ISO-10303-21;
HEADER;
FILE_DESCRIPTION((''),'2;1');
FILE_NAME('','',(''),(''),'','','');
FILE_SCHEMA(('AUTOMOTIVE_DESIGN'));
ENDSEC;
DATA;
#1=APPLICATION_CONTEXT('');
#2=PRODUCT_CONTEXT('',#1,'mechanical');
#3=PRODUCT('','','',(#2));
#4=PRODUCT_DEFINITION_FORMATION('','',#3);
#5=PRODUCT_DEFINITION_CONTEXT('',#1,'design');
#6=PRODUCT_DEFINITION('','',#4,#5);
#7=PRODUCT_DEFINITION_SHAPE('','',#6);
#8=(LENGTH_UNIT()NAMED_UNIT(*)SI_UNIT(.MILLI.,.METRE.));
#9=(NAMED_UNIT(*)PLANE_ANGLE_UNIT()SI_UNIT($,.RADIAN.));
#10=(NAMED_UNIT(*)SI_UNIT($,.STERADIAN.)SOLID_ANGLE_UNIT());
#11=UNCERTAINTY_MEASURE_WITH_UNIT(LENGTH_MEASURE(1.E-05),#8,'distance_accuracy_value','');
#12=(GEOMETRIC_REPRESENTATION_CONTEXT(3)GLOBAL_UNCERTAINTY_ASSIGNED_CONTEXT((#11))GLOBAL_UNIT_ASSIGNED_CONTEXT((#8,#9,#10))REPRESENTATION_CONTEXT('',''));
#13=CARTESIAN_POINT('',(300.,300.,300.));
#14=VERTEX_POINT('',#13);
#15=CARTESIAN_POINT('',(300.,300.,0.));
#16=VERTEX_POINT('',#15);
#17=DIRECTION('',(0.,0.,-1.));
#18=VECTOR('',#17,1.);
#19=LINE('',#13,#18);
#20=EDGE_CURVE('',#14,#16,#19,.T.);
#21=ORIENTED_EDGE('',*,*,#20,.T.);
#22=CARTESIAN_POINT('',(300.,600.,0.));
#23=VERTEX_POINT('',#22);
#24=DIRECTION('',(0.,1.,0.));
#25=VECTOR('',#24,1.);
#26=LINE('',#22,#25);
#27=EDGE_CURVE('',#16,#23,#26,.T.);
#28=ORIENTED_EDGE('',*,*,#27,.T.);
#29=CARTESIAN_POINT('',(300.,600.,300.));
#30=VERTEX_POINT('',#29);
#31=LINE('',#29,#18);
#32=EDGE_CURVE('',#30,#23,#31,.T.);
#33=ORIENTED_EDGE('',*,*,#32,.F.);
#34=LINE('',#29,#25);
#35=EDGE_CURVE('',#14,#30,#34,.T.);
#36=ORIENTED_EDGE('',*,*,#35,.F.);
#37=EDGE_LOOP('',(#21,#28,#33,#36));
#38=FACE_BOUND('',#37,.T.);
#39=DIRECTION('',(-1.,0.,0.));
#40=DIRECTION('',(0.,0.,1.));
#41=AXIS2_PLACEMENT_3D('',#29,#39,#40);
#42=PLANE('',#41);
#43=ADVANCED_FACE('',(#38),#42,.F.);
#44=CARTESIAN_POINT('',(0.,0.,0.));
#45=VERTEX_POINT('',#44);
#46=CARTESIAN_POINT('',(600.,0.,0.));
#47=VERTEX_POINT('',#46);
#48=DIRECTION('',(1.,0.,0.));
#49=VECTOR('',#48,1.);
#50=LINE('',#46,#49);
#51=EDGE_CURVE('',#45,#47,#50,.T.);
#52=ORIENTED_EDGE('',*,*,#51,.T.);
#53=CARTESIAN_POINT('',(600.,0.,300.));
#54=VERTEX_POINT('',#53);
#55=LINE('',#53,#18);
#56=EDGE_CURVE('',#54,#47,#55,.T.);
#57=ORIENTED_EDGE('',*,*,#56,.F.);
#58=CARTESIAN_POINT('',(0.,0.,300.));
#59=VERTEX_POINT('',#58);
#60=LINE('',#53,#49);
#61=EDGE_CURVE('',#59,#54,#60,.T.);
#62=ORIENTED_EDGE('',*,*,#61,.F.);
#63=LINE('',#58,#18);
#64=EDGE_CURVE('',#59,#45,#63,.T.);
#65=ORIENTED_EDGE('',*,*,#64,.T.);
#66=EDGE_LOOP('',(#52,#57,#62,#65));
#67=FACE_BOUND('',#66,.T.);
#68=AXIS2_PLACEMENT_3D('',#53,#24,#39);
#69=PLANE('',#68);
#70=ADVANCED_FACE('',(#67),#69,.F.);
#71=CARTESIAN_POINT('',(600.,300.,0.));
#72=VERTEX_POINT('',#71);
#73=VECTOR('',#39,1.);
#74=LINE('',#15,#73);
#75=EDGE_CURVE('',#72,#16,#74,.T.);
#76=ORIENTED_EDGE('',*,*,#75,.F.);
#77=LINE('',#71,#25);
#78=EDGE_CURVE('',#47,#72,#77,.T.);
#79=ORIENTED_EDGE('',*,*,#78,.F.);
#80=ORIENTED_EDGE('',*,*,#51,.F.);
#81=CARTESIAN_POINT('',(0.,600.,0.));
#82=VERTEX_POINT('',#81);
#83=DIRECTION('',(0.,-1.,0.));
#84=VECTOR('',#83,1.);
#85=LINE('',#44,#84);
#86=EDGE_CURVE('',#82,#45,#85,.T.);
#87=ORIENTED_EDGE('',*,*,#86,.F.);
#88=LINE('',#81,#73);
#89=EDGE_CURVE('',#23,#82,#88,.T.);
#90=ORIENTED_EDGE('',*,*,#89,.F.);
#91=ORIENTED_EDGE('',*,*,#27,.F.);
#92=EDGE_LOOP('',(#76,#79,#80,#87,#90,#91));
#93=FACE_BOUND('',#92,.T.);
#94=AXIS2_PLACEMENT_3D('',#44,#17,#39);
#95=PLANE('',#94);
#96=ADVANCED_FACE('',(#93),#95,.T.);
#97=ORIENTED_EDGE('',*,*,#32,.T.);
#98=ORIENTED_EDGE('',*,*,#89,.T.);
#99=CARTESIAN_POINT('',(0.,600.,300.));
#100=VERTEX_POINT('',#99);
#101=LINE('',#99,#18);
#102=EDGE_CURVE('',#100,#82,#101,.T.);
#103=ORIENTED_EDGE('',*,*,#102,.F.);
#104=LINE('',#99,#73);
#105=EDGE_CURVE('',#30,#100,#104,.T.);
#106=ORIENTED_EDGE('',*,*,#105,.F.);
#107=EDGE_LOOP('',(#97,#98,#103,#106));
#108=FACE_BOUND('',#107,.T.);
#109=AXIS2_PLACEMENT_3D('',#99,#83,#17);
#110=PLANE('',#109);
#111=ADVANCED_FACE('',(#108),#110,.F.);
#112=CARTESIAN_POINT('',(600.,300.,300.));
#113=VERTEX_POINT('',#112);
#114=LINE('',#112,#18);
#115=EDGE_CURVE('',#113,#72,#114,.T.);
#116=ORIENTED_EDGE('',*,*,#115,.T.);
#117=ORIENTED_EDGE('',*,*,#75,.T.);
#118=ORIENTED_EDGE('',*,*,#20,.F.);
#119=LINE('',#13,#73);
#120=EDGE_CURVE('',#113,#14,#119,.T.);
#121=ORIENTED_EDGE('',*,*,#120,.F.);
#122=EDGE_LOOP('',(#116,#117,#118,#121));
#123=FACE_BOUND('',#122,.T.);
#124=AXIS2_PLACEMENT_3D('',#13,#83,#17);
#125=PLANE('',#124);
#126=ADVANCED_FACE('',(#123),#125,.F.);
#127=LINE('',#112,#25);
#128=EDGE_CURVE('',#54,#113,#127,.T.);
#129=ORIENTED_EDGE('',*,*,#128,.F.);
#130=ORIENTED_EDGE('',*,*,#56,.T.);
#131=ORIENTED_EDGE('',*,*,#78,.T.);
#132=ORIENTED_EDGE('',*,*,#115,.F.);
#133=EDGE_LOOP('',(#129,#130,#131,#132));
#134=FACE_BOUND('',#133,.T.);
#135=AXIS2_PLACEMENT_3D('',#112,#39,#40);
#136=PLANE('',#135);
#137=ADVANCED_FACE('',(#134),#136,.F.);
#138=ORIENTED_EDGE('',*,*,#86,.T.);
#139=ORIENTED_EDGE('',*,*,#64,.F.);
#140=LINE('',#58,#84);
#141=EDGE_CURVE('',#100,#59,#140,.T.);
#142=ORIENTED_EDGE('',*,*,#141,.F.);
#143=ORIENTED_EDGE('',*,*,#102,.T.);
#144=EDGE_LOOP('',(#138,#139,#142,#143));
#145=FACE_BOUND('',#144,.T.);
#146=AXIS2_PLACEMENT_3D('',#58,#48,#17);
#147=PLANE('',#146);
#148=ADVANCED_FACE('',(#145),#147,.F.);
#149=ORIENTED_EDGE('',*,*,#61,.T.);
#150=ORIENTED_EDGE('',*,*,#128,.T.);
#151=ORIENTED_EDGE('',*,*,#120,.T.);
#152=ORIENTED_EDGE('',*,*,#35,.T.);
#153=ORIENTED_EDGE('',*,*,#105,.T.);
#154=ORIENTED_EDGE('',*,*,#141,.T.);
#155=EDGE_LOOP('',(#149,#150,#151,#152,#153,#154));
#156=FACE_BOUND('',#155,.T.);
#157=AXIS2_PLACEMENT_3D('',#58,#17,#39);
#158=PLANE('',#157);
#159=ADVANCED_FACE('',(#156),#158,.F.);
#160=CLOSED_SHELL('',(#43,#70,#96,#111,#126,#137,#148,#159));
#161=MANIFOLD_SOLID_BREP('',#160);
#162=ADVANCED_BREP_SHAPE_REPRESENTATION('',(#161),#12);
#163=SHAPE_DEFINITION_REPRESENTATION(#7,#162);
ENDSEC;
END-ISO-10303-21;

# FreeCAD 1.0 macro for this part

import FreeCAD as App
import Part
import Sketcher
from FreeCAD import Vector
Q = App.Units.Quantity

doc = App.newDocument("Part")
body = doc.addObject("PartDesign::Body", "Body")

sketch1 = doc.addObject("Sketcher::SketchObject", "Sketch")
body.addObject(sketch1)
sketch1.AttachmentSupport = (doc.XY_Plane, [""])
sketch1.MapMode = "FlatFace"
sketch1.addGeometry(Part.LineSegment(Vector(0, 600, 0), Vector(0, 0, 0)), False)
sketch1.addGeometry(Part.LineSegment(Vector(0, 0, 0), Vector(600, 0, 0)), False)
sketch1.addGeometry(Part.LineSegment(Vector(600, 0, 0), Vector(600, 300, 0)), False)
sketch1.addGeometry(Part.LineSegment(Vector(600, 300, 0), Vector(300, 300, 0)), False)
sketch1.addGeometry(Part.LineSegment(Vector(300, 300, 0), Vector(300, 600, 0)), False)
sketch1.addGeometry(Part.LineSegment(Vector(300, 600, 0), Vector(0, 600, 0)), False)
sketch1.addConstraint(Sketcher.Constraint("Coincident", 0, 2, 1, 1))
sketch1.addConstraint(Sketcher.Constraint("Coincident", 1, 2, 2, 1))
sketch1.addConstraint(Sketcher.Constraint("Coincident", 2, 2, 3, 1))
sketch1.addConstraint(Sketcher.Constraint("Coincident", 3, 2, 4, 1))
sketch1.addConstraint(Sketcher.Constraint("Coincident", 4, 2, 5, 1))
sketch1.addConstraint(Sketcher.Constraint("Coincident", 5, 2, 0, 1))
sketch1.addConstraint(Sketcher.Constraint("Vertical", 0))
sketch1.addConstraint(Sketcher.Constraint("Horizontal", 1))
sketch1.addConstraint(Sketcher.Constraint("Vertical", 2))
sketch1.addConstraint(Sketcher.Constraint("Horizontal", 3))
sketch1.addConstraint(Sketcher.Constraint("Vertical", 4))
sketch1.addConstraint(Sketcher.Constraint("Horizontal", 5))
sketch1.addConstraint(Sketcher.Constraint("Coincident", 0, 2, -1, 1))
sketch1.addConstraint(Sketcher.Constraint("Equal", 3, 5))
sketch1.addConstraint(Sketcher.Constraint("Equal", 1, 0))
sketch1.addConstraint(Sketcher.Constraint("Equal", 5, 2))
sketch1.addConstraint(Sketcher.Constraint("DistanceX", 1, 1, 1, 2, Q("600 mm")))
pad1 = doc.addObject("PartDesign::Pad", "Pad")
body.addObject(pad1)
pad1.Profile = sketch1
pad1.Length = 300

doc.recompute()
